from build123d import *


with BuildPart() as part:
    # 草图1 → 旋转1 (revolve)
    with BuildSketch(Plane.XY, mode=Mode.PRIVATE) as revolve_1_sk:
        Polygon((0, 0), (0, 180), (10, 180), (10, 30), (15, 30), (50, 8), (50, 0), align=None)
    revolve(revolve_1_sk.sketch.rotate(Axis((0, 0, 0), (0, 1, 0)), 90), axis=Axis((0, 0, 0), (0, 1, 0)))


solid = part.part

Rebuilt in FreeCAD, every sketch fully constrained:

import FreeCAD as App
import Part
import Sketcher

V = App.Vector

doc = App.newDocument("Part")
body = doc.addObject("PartDesign::Body", "Body")

# Sketch on XY plane
sketch1 = doc.addObject("Sketcher::SketchObject", "Sketch")
body.addObject(sketch1)
sketch1.AttachmentSupport = (doc.XY_Plane, [""])
sketch1.MapMode = "FlatFace"
sketch1.addGeometry([
    Part.LineSegment(V(0, 180, 0), V(0, 0, 0)),  # 0
    Part.LineSegment(V(0, 0, 0), V(50, 0, 0)),  # 1
    Part.LineSegment(V(50, 0, 0), V(50, 8, 0)),  # 2
    Part.LineSegment(V(50, 8, 0), V(15, 30, 0)),  # 3
    Part.LineSegment(V(15, 30, 0), V(10, 30, 0)),  # 4
    Part.LineSegment(V(10, 30, 0), V(10, 180, 0)),  # 5
    Part.LineSegment(V(10, 180, 0), V(0, 180, 0)),  # 6
], False)
sketch1.addConstraint([
    Sketcher.Constraint("Coincident", 0, 2, 1, 1),
    Sketcher.Constraint("Coincident", 1, 2, 2, 1),
    Sketcher.Constraint("Coincident", 2, 2, 3, 1),
    Sketcher.Constraint("Coincident", 3, 2, 4, 1),
    Sketcher.Constraint("Coincident", 4, 2, 5, 1),
    Sketcher.Constraint("Coincident", 5, 2, 6, 1),
    Sketcher.Constraint("Coincident", 6, 2, 0, 1),
    Sketcher.Constraint("Vertical", 0),
    Sketcher.Constraint("Horizontal", 1),
    Sketcher.Constraint("Vertical", 2),
    Sketcher.Constraint("Horizontal", 4),
    Sketcher.Constraint("Vertical", 5),
    Sketcher.Constraint("Horizontal", 6),
    Sketcher.Constraint("Coincident", 0, 2, -1, 1),
    Sketcher.Constraint("DistanceX", 1, 1, 1, 2, 50.0),
    Sketcher.Constraint("DistanceX", 4, 2, 4, 1, 5.0),
    Sketcher.Constraint("DistanceX", 6, 2, 6, 1, 10.0),
    Sketcher.Constraint("DistanceY", 0, 2, 0, 1, 180.0),
    Sketcher.Constraint("DistanceY", 2, 1, 2, 2, 8.0),
    Sketcher.Constraint("DistanceY", 5, 1, 5, 2, 150.0),
])
revolution = doc.addObject("PartDesign::Revolution", "Revolution")
body.addObject(revolution)
revolution.Profile = sketch1
revolution.ReferenceAxis = (sketch1, ["V_Axis"])
revolution.Angle = 360

doc.recompute()
